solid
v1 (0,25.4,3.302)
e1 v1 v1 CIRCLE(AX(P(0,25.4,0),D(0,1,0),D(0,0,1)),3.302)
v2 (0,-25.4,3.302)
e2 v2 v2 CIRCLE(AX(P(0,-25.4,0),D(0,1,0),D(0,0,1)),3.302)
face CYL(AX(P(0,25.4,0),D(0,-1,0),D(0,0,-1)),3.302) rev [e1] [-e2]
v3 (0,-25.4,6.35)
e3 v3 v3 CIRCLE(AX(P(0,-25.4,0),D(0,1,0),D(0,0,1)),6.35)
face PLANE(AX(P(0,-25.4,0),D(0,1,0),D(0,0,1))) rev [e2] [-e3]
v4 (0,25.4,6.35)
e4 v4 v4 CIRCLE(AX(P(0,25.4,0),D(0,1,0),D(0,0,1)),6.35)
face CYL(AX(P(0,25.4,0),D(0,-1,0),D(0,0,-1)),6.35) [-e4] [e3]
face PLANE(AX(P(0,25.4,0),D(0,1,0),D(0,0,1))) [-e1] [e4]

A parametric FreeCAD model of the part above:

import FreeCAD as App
import Part
import Sketcher
from FreeCAD import Vector
Q = App.Units.Quantity

doc = App.newDocument("Part")
params = doc.addObject("Spreadsheet::Sheet", "Params")
for row, (alias, value) in enumerate([
    ("sketch1_diameter", "0.5 in"),
    ("sketch1_diameter2", "0.26 in"),
    ("pad1_length", "2 in"),
], start=1):
    params.set(f"A{row}", alias)
    params.set(f"B{row}", "=" + value)
    params.setAlias(f"B{row}", alias)

body = doc.addObject("PartDesign::Body", "Body")

# Sketch on XZ plane
sketch1 = body.newObject("Sketcher::SketchObject", "Sketch")
sketch1.AttachmentSupport = (doc.getObject("XZ_Plane"), [""])
sketch1.MapMode = "FlatFace"
sketch1.addGeometry([
    Part.Circle(Vector(0, 0, 0), Vector(0, 0, 1), 6.3),
    Part.Circle(Vector(0, 0, 0), Vector(0, 0, 1), 3.3),
], False)
sketch1.addConstraint([
    Sketcher.Constraint("Coincident", 0, 3, -1, 1),
    Sketcher.Constraint("Coincident", 1, 3, -1, 1),
    Sketcher.Constraint("Diameter", 0, Q("0.5 in")),
    Sketcher.Constraint("Diameter", 1, Q("0.26 in")),
])
sketch1.setExpression("Constraints[2]", "Params.sketch1_diameter")
sketch1.setExpression("Constraints[3]", "Params.sketch1_diameter2")
pad1 = body.newObject("PartDesign::Pad", "Pad")
pad1.Profile = sketch1
pad1.setExpression("Length", "Params.pad1_length")
pad1.Midplane = True

doc.recompute()
